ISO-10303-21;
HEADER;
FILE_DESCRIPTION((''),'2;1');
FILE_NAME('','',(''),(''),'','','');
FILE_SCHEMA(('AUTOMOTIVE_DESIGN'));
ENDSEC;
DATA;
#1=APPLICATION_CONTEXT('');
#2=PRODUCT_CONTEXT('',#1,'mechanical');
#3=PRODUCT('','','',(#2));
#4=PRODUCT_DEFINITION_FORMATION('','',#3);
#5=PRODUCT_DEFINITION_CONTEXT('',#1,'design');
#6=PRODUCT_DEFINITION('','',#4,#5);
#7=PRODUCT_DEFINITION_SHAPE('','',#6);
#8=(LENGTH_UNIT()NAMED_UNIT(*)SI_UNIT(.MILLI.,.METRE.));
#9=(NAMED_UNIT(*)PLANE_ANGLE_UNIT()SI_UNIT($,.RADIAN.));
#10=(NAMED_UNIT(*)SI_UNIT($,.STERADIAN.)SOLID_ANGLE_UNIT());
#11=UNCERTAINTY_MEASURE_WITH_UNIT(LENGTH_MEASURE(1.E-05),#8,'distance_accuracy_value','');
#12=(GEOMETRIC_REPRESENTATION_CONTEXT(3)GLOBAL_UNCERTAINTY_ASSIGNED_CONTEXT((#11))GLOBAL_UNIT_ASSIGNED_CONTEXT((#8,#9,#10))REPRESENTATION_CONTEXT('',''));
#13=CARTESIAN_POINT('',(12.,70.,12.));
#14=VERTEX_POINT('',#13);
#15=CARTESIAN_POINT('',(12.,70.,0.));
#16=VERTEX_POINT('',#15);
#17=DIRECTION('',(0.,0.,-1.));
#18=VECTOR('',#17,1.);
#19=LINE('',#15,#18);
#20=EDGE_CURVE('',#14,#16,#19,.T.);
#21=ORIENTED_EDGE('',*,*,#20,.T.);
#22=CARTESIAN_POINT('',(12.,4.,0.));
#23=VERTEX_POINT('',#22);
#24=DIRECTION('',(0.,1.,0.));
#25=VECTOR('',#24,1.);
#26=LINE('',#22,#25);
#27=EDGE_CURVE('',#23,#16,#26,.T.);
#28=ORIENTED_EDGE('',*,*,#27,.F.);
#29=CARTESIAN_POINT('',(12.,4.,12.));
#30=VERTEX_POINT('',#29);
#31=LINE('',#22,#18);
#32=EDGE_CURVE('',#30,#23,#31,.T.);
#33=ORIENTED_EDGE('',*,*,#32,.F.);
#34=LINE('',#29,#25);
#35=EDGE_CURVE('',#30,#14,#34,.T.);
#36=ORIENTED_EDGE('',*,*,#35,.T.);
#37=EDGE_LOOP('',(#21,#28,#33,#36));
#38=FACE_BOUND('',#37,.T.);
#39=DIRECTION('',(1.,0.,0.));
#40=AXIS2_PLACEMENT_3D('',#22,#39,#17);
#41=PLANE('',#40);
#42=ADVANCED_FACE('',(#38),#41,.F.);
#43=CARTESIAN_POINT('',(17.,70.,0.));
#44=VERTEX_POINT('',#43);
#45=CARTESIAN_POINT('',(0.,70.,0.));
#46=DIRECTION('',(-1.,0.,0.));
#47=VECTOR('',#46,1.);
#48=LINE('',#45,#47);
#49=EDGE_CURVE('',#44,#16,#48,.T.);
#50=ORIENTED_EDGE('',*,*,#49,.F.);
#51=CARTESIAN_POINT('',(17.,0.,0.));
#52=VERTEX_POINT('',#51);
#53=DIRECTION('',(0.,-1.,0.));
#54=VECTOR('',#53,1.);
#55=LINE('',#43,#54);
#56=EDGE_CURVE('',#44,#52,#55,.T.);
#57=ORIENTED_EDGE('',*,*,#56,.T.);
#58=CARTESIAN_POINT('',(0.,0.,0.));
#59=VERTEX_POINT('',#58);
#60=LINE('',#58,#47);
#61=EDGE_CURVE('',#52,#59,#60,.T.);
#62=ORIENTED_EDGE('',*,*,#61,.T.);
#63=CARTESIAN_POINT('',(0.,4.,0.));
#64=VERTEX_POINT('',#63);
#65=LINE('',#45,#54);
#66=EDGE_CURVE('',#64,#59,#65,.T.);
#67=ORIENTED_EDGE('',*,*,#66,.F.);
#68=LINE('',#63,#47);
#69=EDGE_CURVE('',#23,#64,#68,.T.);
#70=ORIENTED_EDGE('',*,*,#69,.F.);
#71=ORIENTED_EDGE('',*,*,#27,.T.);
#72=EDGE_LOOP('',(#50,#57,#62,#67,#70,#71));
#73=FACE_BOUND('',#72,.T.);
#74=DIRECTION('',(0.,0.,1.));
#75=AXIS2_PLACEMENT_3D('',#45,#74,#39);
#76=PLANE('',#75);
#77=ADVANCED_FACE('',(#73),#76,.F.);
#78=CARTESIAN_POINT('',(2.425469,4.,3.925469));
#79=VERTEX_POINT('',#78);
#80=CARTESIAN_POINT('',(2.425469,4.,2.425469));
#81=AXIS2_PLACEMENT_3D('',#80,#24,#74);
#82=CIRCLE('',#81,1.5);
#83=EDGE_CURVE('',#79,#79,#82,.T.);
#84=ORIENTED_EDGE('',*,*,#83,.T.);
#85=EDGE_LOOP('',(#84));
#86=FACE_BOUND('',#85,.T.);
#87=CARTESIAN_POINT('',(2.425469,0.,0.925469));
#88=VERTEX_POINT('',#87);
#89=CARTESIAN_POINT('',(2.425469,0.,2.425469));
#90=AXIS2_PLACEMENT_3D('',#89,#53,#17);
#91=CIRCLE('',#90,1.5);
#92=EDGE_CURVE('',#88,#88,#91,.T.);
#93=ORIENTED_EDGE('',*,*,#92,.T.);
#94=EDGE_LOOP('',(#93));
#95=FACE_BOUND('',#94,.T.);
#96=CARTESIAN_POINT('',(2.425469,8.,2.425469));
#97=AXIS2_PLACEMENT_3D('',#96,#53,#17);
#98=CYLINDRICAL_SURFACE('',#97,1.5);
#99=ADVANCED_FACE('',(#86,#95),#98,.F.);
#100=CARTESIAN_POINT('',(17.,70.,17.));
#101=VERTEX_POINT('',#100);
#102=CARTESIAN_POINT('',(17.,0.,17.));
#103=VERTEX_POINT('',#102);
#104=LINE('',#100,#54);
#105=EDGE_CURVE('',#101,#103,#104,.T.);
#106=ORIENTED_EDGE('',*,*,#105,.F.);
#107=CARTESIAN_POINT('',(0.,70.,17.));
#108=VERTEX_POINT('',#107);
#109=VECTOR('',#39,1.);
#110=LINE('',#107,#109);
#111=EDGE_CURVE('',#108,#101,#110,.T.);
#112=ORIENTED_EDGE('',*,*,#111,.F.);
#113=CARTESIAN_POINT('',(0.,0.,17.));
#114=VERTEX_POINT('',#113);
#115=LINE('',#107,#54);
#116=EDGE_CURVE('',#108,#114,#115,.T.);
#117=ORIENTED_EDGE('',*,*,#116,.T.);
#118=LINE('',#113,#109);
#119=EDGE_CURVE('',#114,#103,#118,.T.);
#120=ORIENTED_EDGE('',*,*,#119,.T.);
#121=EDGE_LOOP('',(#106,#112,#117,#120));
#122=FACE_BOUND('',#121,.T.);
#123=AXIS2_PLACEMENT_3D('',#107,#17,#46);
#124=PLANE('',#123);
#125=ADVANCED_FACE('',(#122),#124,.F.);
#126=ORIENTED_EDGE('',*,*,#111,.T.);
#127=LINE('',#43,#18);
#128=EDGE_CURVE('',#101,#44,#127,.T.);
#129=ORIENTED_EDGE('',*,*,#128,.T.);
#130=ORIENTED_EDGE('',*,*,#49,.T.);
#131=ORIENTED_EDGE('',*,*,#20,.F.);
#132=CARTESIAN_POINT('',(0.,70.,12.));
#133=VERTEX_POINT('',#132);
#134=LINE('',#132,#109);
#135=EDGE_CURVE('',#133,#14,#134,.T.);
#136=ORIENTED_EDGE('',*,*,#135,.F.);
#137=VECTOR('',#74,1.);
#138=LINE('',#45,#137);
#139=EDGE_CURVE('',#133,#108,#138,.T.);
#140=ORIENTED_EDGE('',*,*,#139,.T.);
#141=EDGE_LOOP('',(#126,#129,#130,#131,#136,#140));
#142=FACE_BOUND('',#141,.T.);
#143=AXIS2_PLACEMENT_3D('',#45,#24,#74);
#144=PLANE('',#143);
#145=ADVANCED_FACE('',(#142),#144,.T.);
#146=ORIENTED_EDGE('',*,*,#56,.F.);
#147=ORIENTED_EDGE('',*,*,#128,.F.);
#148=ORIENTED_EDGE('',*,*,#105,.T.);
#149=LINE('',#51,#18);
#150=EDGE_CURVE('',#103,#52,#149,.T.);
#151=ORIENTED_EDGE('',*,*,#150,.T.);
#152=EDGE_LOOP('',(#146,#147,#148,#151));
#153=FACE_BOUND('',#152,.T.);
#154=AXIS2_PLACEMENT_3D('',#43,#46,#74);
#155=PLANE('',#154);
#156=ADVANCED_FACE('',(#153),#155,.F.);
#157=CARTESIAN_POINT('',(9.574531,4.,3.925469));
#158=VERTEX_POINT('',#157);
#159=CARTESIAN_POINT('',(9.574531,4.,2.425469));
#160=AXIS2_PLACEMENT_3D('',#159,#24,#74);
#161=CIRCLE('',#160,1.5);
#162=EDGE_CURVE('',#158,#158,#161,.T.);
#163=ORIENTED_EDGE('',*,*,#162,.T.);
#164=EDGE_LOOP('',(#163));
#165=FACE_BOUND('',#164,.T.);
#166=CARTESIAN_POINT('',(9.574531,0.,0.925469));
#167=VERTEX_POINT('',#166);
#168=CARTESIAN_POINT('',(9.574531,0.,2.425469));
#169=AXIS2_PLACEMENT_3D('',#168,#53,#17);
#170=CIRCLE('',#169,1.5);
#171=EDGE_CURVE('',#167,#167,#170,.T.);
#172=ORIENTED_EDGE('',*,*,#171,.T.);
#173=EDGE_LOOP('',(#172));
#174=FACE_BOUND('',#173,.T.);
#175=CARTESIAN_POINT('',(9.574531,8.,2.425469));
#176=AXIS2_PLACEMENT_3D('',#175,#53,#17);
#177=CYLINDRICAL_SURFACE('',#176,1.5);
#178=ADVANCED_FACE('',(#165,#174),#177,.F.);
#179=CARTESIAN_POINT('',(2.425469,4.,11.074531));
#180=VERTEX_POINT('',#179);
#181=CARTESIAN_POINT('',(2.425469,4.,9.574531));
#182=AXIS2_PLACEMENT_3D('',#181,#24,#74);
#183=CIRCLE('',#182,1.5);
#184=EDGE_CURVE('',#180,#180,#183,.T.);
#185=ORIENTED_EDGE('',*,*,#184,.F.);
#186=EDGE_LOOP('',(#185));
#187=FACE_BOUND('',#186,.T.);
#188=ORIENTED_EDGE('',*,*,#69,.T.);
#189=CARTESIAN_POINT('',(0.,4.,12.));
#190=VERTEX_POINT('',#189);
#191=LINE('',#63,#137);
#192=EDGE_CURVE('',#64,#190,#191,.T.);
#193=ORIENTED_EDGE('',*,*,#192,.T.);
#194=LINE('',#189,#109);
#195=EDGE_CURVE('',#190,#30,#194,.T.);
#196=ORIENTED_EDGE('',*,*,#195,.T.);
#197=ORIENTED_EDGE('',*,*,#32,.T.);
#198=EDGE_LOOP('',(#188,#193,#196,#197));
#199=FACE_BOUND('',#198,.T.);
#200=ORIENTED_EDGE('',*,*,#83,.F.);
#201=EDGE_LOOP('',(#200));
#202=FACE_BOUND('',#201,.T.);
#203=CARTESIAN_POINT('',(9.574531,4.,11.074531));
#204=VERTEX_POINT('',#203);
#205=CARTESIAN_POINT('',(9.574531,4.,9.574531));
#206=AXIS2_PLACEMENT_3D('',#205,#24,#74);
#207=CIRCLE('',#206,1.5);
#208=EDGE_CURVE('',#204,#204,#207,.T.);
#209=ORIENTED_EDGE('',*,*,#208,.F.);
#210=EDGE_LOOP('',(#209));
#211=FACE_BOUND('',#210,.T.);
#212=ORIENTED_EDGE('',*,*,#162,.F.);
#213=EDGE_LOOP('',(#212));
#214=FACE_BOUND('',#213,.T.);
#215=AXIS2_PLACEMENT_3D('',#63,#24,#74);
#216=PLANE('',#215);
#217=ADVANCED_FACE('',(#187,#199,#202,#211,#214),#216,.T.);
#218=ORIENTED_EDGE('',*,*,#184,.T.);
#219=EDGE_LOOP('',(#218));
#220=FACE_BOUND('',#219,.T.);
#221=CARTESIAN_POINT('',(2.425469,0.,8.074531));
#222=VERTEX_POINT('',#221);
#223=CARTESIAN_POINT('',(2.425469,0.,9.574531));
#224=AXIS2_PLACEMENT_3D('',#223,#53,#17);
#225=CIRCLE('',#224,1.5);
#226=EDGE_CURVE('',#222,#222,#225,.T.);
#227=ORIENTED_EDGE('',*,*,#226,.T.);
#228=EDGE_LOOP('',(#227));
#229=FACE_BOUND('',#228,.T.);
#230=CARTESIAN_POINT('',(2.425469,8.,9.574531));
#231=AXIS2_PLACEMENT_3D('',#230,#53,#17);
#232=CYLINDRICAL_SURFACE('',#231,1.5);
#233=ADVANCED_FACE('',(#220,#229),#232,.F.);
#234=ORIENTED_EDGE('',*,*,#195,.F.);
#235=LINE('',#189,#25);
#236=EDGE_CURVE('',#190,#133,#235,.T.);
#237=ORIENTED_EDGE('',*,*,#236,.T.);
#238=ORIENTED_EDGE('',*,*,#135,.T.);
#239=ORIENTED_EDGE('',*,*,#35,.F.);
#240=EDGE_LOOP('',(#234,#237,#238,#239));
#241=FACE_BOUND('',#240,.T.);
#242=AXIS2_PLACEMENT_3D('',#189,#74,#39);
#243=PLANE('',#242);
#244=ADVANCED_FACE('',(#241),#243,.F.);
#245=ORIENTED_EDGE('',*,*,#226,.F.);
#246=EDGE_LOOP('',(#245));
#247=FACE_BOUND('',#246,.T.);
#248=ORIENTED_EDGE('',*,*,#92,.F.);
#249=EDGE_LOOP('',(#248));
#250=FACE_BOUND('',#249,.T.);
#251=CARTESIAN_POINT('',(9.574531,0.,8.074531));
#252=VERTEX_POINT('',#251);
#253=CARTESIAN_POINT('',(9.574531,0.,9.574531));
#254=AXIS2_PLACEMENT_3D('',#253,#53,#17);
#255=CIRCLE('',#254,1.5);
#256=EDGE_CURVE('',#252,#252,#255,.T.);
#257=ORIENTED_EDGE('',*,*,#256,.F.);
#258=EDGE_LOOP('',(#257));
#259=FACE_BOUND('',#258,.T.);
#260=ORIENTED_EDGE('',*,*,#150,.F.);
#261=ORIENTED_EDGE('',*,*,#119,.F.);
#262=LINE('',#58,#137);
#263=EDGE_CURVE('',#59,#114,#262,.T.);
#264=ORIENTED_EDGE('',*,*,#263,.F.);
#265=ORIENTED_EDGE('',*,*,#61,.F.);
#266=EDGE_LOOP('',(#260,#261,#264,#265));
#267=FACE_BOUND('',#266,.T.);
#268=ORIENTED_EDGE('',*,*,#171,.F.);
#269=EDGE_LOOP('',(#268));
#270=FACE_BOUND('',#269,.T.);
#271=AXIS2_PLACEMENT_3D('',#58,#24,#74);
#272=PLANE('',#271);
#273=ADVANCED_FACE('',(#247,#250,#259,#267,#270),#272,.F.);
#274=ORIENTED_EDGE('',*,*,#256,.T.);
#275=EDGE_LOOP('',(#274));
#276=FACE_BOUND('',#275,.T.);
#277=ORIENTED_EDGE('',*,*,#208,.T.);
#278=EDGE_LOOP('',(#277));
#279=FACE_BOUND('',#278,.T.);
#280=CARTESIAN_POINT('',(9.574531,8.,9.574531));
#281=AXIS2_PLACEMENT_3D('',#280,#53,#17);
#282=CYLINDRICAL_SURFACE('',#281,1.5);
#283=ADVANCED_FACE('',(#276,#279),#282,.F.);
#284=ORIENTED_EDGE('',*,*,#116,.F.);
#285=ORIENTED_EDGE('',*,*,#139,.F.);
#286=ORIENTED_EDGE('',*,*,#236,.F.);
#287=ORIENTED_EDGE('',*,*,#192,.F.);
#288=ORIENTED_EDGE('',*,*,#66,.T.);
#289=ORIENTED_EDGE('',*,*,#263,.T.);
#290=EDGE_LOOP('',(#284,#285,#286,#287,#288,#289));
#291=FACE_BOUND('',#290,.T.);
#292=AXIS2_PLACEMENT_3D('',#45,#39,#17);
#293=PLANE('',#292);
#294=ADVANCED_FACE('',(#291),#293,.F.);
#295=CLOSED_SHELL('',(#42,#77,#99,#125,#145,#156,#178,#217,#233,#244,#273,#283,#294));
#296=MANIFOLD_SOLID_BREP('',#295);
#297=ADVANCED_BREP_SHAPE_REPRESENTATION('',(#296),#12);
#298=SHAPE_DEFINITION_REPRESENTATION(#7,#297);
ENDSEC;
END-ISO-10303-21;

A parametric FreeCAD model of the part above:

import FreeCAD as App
import Part
import Sketcher

V = App.Vector
Q = App.Units.Quantity

doc = App.newDocument("Part")
body = doc.addObject("PartDesign::Body", "Body")

# Sketch on XZ plane
sketch1 = doc.addObject("Sketcher::SketchObject", "Sketch")
body.addObject(sketch1)
sketch1.AttachmentSupport = (doc.XZ_Plane, [""])
sketch1.MapMode = "FlatFace"
sketch1.addGeometry(Part.LineSegment(V(0, 0, 0), V(0, 17, 0)), False)
sketch1.addGeometry(Part.LineSegment(V(0, 17, 0), V(17, 17, 0)), False)
sketch1.addGeometry(Part.LineSegment(V(17, 17, 0), V(17, 0, 0)), False)
sketch1.addGeometry(Part.LineSegment(V(17, 0, 0), V(0, 0, 0)), False)
sketch1.addConstraint(Sketcher.Constraint("Coincident", 0, 2, 1, 1))
sketch1.addConstraint(Sketcher.Constraint("Coincident", 1, 2, 2, 1))
sketch1.addConstraint(Sketcher.Constraint("Coincident", 2, 2, 3, 1))
sketch1.addConstraint(Sketcher.Constraint("Coincident", 3, 2, 0, 1))
sketch1.addConstraint(Sketcher.Constraint("Vertical", 0))
sketch1.addConstraint(Sketcher.Constraint("Horizontal", 1))
sketch1.addConstraint(Sketcher.Constraint("Vertical", 2))
sketch1.addConstraint(Sketcher.Constraint("Horizontal", 3))
sketch1.addConstraint(Sketcher.Constraint("Coincident", 3, 2, -1, 1))
sketch1.addConstraint(Sketcher.Constraint("Equal", 3, 0))
sketch1.addConstraint(Sketcher.Constraint("DistanceX", 1, 1, 1, 2, Q("17 mm")))
pad1 = doc.addObject("PartDesign::Pad", "Pad")
body.addObject(pad1)
pad1.Profile = sketch1
pad1.Length = 70
pad1.Reversed = True

# Sketch on XZ plane
sketch2 = doc.addObject("Sketcher::SketchObject", "Sketch001")
body.addObject(sketch2)
sketch2.AttachmentSupport = (doc.XZ_Plane, [""])
sketch2.MapMode = "FlatFace"
sketch2.AttachmentOffset = App.Placement(V(0, 0, -70), App.Rotation())
sketch2.addGeometry(Part.LineSegment(V(0, 0, 0), V(0, 12, 0)), False)
sketch2.addGeometry(Part.LineSegment(V(0, 12, 0), V(12, 12, 0)), False)
sketch2.addGeometry(Part.LineSegment(V(12, 12, 0), V(12, 0, 0)), False)
sketch2.addGeometry(Part.LineSegment(V(12, 0, 0), V(0, 0, 0)), False)
sketch2.addConstraint(Sketcher.Constraint("Coincident", 0, 2, 1, 1))
sketch2.addConstraint(Sketcher.Constraint("Coincident", 1, 2, 2, 1))
sketch2.addConstraint(Sketcher.Constraint("Coincident", 2, 2, 3, 1))
sketch2.addConstraint(Sketcher.Constraint("Coincident", 3, 2, 0, 1))
sketch2.addConstraint(Sketcher.Constraint("Vertical", 0))
sketch2.addConstraint(Sketcher.Constraint("Horizontal", 1))
sketch2.addConstraint(Sketcher.Constraint("Vertical", 2))
sketch2.addConstraint(Sketcher.Constraint("Horizontal", 3))
sketch2.addConstraint(Sketcher.Constraint("Coincident", 3, 2, -1, 1))
sketch2.addConstraint(Sketcher.Constraint("Equal", 3, 0))
sketch2.addConstraint(Sketcher.Constraint("DistanceX", 1, 1, 1, 2, Q("12 mm")))
pocket1 = doc.addObject("PartDesign::Pocket", "Pocket")
body.addObject(pocket1)
pocket1.Profile = sketch2
pocket1.Length = 66
pocket1.Reversed = True

# Sketch on XZ plane
sketch3 = doc.addObject("Sketcher::SketchObject", "Sketch002")
body.addObject(sketch3)
sketch3.AttachmentSupport = (doc.XZ_Plane, [""])
sketch3.MapMode = "FlatFace"
sketch3.addGeometry(Part.Circle(V(9.6, 2.4, 0), V(0, 0, 1), 1.5), False)
sketch3.addGeometry(Part.Circle(V(2.4, 2.4, 0), V(0, 0, 1), 1.5), False)
sketch3.addGeometry(Part.Circle(V(9.6, 9.6, 0), V(0, 0, 1), 1.5), False)
sketch3.addGeometry(Part.Circle(V(2.4, 9.6, 0), V(0, 0, 1), 1.5), False)
sketch3.addConstraint(Sketcher.Constraint("Equal", 0, 1))
sketch3.addConstraint(Sketcher.Constraint("Equal", 1, 2))
sketch3.addConstraint(Sketcher.Constraint("Equal", 2, 3))
sketch3.addConstraint(Sketcher.Constraint("Horizontal", 0, 3, 1, 3))
sketch3.addConstraint(Sketcher.Constraint("Horizontal", 2, 3, 3, 3))
sketch3.addConstraint(Sketcher.Constraint("Vertical", 0, 3, 2, 3))
sketch3.addConstraint(Sketcher.Constraint("Vertical", 1, 3, 3, 3))
sketch3.addConstraint(Sketcher.Constraint("Diameter", 0, Q("3 mm")))
sketch3.addConstraint(Sketcher.Constraint("DistanceX", -1, 1, 0, 3, Q("9.574531 mm")))
sketch3.addConstraint(Sketcher.Constraint("DistanceY", -1, 1, 0, 3, Q("2.425469 mm")))
sketch3.addConstraint(Sketcher.Constraint("DistanceX", -1, 1, 1, 3, Q("2.425469 mm")))
sketch3.addConstraint(Sketcher.Constraint("DistanceY", -1, 1, 2, 3, Q("9.574531 mm")))
pocket2 = doc.addObject("PartDesign::Pocket", "Pocket001")
body.addObject(pocket2)
pocket2.Profile = sketch3
pocket2.Length = 8

doc.recompute()
